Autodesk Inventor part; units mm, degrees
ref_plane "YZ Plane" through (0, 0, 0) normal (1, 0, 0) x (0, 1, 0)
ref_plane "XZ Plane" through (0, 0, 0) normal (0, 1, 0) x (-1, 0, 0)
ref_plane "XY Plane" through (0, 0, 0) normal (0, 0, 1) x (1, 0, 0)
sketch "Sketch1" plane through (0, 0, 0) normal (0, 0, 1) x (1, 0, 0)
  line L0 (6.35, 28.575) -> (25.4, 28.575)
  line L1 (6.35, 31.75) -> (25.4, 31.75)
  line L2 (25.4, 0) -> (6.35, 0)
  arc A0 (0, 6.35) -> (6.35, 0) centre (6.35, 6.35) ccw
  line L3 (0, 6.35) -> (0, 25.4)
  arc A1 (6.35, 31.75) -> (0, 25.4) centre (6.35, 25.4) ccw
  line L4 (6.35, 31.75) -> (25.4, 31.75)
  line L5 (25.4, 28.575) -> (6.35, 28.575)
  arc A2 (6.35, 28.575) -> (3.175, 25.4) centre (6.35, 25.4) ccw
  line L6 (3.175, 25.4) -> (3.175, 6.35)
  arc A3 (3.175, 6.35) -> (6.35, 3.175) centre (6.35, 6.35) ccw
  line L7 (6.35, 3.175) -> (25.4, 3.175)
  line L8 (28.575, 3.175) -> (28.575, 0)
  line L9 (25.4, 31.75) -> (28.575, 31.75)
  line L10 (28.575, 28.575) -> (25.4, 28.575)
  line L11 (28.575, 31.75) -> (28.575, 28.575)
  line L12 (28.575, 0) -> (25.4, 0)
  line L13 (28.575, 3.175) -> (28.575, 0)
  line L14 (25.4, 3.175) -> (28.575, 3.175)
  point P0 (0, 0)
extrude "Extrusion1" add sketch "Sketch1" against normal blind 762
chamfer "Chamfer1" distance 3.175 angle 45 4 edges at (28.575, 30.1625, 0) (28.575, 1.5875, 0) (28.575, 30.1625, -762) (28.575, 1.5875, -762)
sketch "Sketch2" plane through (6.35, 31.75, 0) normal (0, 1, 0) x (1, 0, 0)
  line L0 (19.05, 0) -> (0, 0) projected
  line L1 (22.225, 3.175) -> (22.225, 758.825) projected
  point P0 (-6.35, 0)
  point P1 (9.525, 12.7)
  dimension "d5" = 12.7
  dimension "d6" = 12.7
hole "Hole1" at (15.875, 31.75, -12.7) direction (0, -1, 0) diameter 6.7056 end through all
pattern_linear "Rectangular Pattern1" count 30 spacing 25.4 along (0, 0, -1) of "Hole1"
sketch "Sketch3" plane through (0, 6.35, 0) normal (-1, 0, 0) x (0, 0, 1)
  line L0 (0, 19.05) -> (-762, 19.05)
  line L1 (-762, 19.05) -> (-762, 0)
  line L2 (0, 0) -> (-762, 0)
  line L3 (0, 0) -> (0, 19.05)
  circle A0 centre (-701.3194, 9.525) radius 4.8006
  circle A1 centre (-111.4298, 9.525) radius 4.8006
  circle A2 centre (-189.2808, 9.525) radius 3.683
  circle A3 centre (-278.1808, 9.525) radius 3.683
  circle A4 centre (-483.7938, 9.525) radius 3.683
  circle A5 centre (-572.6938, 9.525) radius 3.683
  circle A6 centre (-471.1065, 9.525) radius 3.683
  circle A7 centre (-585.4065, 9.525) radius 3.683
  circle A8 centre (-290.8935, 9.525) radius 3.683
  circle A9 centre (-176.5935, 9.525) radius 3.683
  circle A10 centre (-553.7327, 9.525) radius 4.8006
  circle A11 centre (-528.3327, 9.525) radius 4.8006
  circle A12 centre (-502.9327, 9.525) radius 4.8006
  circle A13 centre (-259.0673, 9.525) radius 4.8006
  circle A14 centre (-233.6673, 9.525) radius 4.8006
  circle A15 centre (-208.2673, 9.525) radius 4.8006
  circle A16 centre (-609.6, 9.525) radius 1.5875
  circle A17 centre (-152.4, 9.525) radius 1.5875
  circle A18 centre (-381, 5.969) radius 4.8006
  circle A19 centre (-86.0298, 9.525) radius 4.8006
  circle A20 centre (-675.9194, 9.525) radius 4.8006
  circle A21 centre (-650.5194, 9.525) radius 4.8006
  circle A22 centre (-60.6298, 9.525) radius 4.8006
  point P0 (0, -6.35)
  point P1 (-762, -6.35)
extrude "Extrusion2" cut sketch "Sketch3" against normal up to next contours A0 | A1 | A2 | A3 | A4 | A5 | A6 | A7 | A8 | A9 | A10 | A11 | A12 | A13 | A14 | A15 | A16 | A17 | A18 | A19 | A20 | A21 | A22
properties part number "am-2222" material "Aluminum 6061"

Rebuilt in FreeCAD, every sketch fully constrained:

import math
import FreeCAD as App
import Part
import Sketcher

V = App.Vector
Q = App.Units.Quantity


def edges_at(feature, points):
    """Names of the edges that pass closest to the given points."""
    edges = feature.Shape.Edges
    near = lambda p: min(range(len(edges)), key=lambda i: edges[i].distToShape(Part.Vertex(*p))[0])
    return sorted({f"Edge{near(p) + 1}" for p in points})

doc = App.newDocument("Part")
body = doc.addObject("PartDesign::Body", "Body")

sketch1 = doc.addObject("Sketcher::SketchObject", "Sketch")
body.addObject(sketch1)
sketch1.AttachmentSupport = (doc.XY_Plane, [""])
sketch1.MapMode = "FlatFace"
sketch1.addGeometry(Part.ArcOfCircle(Part.Circle(V(6.3, 25.4, 0), V(0, 0, 1), 3.2), math.radians(90), math.radians(180)), False)
sketch1.addGeometry(Part.LineSegment(V(6.3, 28.6, 0), V(28.6, 28.6, 0)), False)
sketch1.addGeometry(Part.LineSegment(V(28.6, 28.6, 0), V(28.6, 31.8, 0)), False)
sketch1.addGeometry(Part.LineSegment(V(28.6, 31.8, 0), V(6.3, 31.8, 0)), False)
sketch1.addGeometry(Part.ArcOfCircle(Part.Circle(V(6.3, 25.4, 0), V(0, 0, 1), 6.4), math.radians(90), math.radians(180)), False)
sketch1.addGeometry(Part.LineSegment(V(0, 25.4, 0), V(0, 6.3, 0)), False)
sketch1.addGeometry(Part.ArcOfCircle(Part.Circle(V(6.3, 6.3, 0), V(0, 0, 1), 6.3), math.radians(180), math.radians(270)), False)
sketch1.addGeometry(Part.LineSegment(V(6.3, 0, 0), V(28.6, 0, 0)), False)
sketch1.addGeometry(Part.LineSegment(V(28.6, 0, 0), V(28.6, 3.2, 0)), False)
sketch1.addGeometry(Part.LineSegment(V(28.6, 3.2, 0), V(6.3, 3.2, 0)), False)
sketch1.addGeometry(Part.ArcOfCircle(Part.Circle(V(6.3, 6.3, 0), V(0, 0, 1), 3.2), math.radians(180), math.radians(270)), False)
sketch1.addGeometry(Part.LineSegment(V(3.2, 6.3, 0), V(3.2, 25.4, 0)), False)
sketch1.addConstraint(Sketcher.Constraint("Tangent", 0, 1, 1, 1))
sketch1.addConstraint(Sketcher.Constraint("Coincident", 1, 2, 2, 1))
sketch1.addConstraint(Sketcher.Constraint("Coincident", 2, 2, 3, 1))
sketch1.addConstraint(Sketcher.Constraint("Tangent", 3, 2, 4, 1))
sketch1.addConstraint(Sketcher.Constraint("Tangent", 4, 2, 5, 1))
sketch1.addConstraint(Sketcher.Constraint("Tangent", 5, 2, 6, 1))
sketch1.addConstraint(Sketcher.Constraint("Tangent", 6, 2, 7, 1))
sketch1.addConstraint(Sketcher.Constraint("Coincident", 7, 2, 8, 1))
sketch1.addConstraint(Sketcher.Constraint("Coincident", 8, 2, 9, 1))
sketch1.addConstraint(Sketcher.Constraint("Tangent", 9, 2, 10, 2))
sketch1.addConstraint(Sketcher.Constraint("Tangent", 10, 1, 11, 1))
sketch1.addConstraint(Sketcher.Constraint("Tangent", 11, 2, 0, 2))
sketch1.addConstraint(Sketcher.Constraint("Horizontal", 1))
sketch1.addConstraint(Sketcher.Constraint("Vertical", 2))
sketch1.addConstraint(Sketcher.Constraint("Horizontal", 3))
sketch1.addConstraint(Sketcher.Constraint("Vertical", 5))
sketch1.addConstraint(Sketcher.Constraint("Horizontal", 7))
sketch1.addConstraint(Sketcher.Constraint("Vertical", 8))
sketch1.addConstraint(Sketcher.Constraint("Horizontal", 9))
sketch1.addConstraint(Sketcher.Constraint("Vertical", 11))
sketch1.addConstraint(Sketcher.Constraint("Coincident", 4, 3, 0, 3))
sketch1.addConstraint(Sketcher.Constraint("Coincident", 10, 3, 6, 3))
sketch1.addConstraint(Sketcher.Constraint("Equal", 4, 6))
sketch1.addConstraint(Sketcher.Constraint("PointOnObject", 4, 2, -2))
sketch1.addConstraint(Sketcher.Constraint("PointOnObject", 6, 2, -1))
sketch1.addConstraint(Sketcher.Constraint("Vertical", 2, 2, 7, 2))
sketch1.addConstraint(Sketcher.Constraint("Radius", 4, Q("0.25 in")))
sketch1.addConstraint(Sketcher.Constraint("DistanceY", -1, 1, 0, 3, Q("1 in")))
sketch1.addConstraint(Sketcher.Constraint("Radius", 0, Q("0.125 in")))
sketch1.addConstraint(Sketcher.Constraint("DistanceX", 1, 1, 1, 2, Q("0.875 in")))
pad1 = doc.addObject("PartDesign::Pad", "Pad")
body.addObject(pad1)
pad1.Profile = sketch1
pad1.Length = Q("30 in")
pad1.Reversed = True
doc.recompute()

chamfer = doc.addObject("PartDesign::Chamfer", "Chamfer")
body.addObject(chamfer)
chamfer.Base = (pad1, edges_at(pad1, [
    (28.575, 30.163, 0),
    (28.575, 1.587, 0),
    (28.575, 30.163, -762),
    (28.575, 1.587, -762),
]))
chamfer.Size = Q("0.125 in")

sketch2 = doc.addObject("Sketcher::SketchObject", "Sketch001")
body.addObject(sketch2)
sketch2.AttachmentSupport = (doc.XZ_Plane, [""])
sketch2.MapMode = "FlatFace"
sketch2.AttachmentOffset = App.Placement(V(0, 0, -1.25 * 25.4), App.Rotation())
sketch2.addGeometry(Part.Circle(V(15.9, -12.7, 0), V(0, 0, 1), 3.4), False)
sketch2.addConstraint(Sketcher.Constraint("Diameter", 0, Q("0.264 in")))
sketch2.addConstraint(Sketcher.Constraint("DistanceY", 0, 3, -1, 1, Q("0.5 in")))
sketch2.addConstraint(Sketcher.Constraint("DistanceX", -1, 1, 0, 3, Q("0.625 in")))
doc.recompute()
hole = doc.addObject("PartDesign::Hole", "Hole")
body.addObject(hole)
hole.Profile = sketch2
hole.ThreadType = "None"
hole.Diameter = Q("0.264 in")
hole.DepthType = "ThroughAll"
hole.Reversed = True
doc.recompute()

linearpattern = doc.addObject("PartDesign::LinearPattern", "LinearPattern")
body.addObject(linearpattern)
linearpattern.Originals = [hole]
linearpattern.Direction = (doc.Z_Axis, [""])
linearpattern.Mode = "offset"
linearpattern.Offset = Q("1 in")
linearpattern.Occurrences = 30
linearpattern.Reversed = True
body.Tip = linearpattern

sketch3 = doc.addObject("Sketcher::SketchObject", "Sketch002")
body.addObject(sketch3)
sketch3.AttachmentSupport = (doc.YZ_Plane, [""])
sketch3.MapMode = "FlatFace"
sketch3.addGeometry(Part.Circle(V(15.9, -701.3, 0), V(0, 0, 1), 4.8), False)
sketch3.addGeometry(Part.Circle(V(15.9, -111.4, 0), V(0, 0, 1), 4.8), False)
sketch3.addGeometry(Part.Circle(V(15.9, -189.3, 0), V(0, 0, 1), 3.7), False)
sketch3.addGeometry(Part.Circle(V(15.9, -278.2, 0), V(0, 0, 1), 3.7), False)
sketch3.addGeometry(Part.Circle(V(15.9, -483.8, 0), V(0, 0, 1), 3.7), False)
sketch3.addGeometry(Part.Circle(V(15.9, -572.7, 0), V(0, 0, 1), 3.7), False)
sketch3.addGeometry(Part.Circle(V(15.9, -471.1, 0), V(0, 0, 1), 3.7), False)
sketch3.addGeometry(Part.Circle(V(15.9, -585.4, 0), V(0, 0, 1), 3.7), False)
sketch3.addGeometry(Part.Circle(V(15.9, -290.9, 0), V(0, 0, 1), 3.7), False)
sketch3.addGeometry(Part.Circle(V(15.9, -176.6, 0), V(0, 0, 1), 3.7), False)
sketch3.addGeometry(Part.Circle(V(15.9, -553.7, 0), V(0, 0, 1), 4.8), False)
sketch3.addGeometry(Part.Circle(V(15.9, -528.3, 0), V(0, 0, 1), 4.8), False)
sketch3.addGeometry(Part.Circle(V(15.9, -502.9, 0), V(0, 0, 1), 4.8), False)
sketch3.addGeometry(Part.Circle(V(15.9, -259.1, 0), V(0, 0, 1), 4.8), False)
sketch3.addGeometry(Part.Circle(V(15.9, -233.7, 0), V(0, 0, 1), 4.8), False)
sketch3.addGeometry(Part.Circle(V(15.9, -208.3, 0), V(0, 0, 1), 4.8), False)
sketch3.addGeometry(Part.Circle(V(15.9, -609.6, 0), V(0, 0, 1), 1.6), False)
sketch3.addGeometry(Part.Circle(V(15.9, -152.4, 0), V(0, 0, 1), 1.6), False)
sketch3.addGeometry(Part.Circle(V(12.3, -381, 0), V(0, 0, 1), 4.8), False)
sketch3.addGeometry(Part.Circle(V(15.9, -86, 0), V(0, 0, 1), 4.8), False)
sketch3.addGeometry(Part.Circle(V(15.9, -675.9, 0), V(0, 0, 1), 4.8), False)
sketch3.addGeometry(Part.Circle(V(15.9, -650.5, 0), V(0, 0, 1), 4.8), False)
sketch3.addGeometry(Part.Circle(V(15.9, -60.6, 0), V(0, 0, 1), 4.8), False)
sketch3.addConstraint(Sketcher.Constraint("Equal", 0, 1))
sketch3.addConstraint(Sketcher.Constraint("Equal", 2, 3))
sketch3.addConstraint(Sketcher.Constraint("Equal", 3, 4))
sketch3.addConstraint(Sketcher.Constraint("Equal", 4, 5))
sketch3.addConstraint(Sketcher.Constraint("Equal", 5, 6))
sketch3.addConstraint(Sketcher.Constraint("Equal", 6, 7))
sketch3.addConstraint(Sketcher.Constraint("Equal", 7, 8))
sketch3.addConstraint(Sketcher.Constraint("Equal", 8, 9))
sketch3.addConstraint(Sketcher.Constraint("Equal", 1, 10))
sketch3.addConstraint(Sketcher.Constraint("Equal", 10, 11))
sketch3.addConstraint(Sketcher.Constraint("Equal", 11, 12))
sketch3.addConstraint(Sketcher.Constraint("Equal", 12, 13))
sketch3.addConstraint(Sketcher.Constraint("Equal", 13, 14))
sketch3.addConstraint(Sketcher.Constraint("Equal", 14, 15))
sketch3.addConstraint(Sketcher.Constraint("Equal", 16, 17))
sketch3.addConstraint(Sketcher.Constraint("Equal", 15, 18))
sketch3.addConstraint(Sketcher.Constraint("Equal", 18, 19))
sketch3.addConstraint(Sketcher.Constraint("Equal", 19, 20))
sketch3.addConstraint(Sketcher.Constraint("Equal", 20, 21))
sketch3.addConstraint(Sketcher.Constraint("Equal", 21, 22))
sketch3.addConstraint(Sketcher.Constraint("Vertical", 0, 3, 1, 3))
sketch3.addConstraint(Sketcher.Constraint("Vertical", 1, 3, 2, 3))
sketch3.addConstraint(Sketcher.Constraint("Vertical", 2, 3, 3, 3))
sketch3.addConstraint(Sketcher.Constraint("Vertical", 3, 3, 4, 3))
sketch3.addConstraint(Sketcher.Constraint("Vertical", 4, 3, 5, 3))
sketch3.addConstraint(Sketcher.Constraint("Vertical", 5, 3, 6, 3))
sketch3.addConstraint(Sketcher.Constraint("Vertical", 6, 3, 7, 3))
sketch3.addConstraint(Sketcher.Constraint("Vertical", 7, 3, 8, 3))
sketch3.addConstraint(Sketcher.Constraint("Vertical", 8, 3, 9, 3))
sketch3.addConstraint(Sketcher.Constraint("Vertical", 9, 3, 10, 3))
sketch3.addConstraint(Sketcher.Constraint("Vertical", 10, 3, 11, 3))
sketch3.addConstraint(Sketcher.Constraint("Vertical", 11, 3, 12, 3))
sketch3.addConstraint(Sketcher.Constraint("Vertical", 12, 3, 13, 3))
sketch3.addConstraint(Sketcher.Constraint("Vertical", 13, 3, 14, 3))
sketch3.addConstraint(Sketcher.Constraint("Vertical", 14, 3, 15, 3))
sketch3.addConstraint(Sketcher.Constraint("Vertical", 15, 3, 16, 3))
sketch3.addConstraint(Sketcher.Constraint("Vertical", 16, 3, 17, 3))
sketch3.addConstraint(Sketcher.Constraint("Vertical", 17, 3, 19, 3))
sketch3.addConstraint(Sketcher.Constraint("Vertical", 19, 3, 20, 3))
sketch3.addConstraint(Sketcher.Constraint("Vertical", 20, 3, 21, 3))
sketch3.addConstraint(Sketcher.Constraint("Vertical", 21, 3, 22, 3))
sketch3.addConstraint(Sketcher.Constraint("Diameter", 2, Q("0.29 in")))
sketch3.addConstraint(Sketcher.Constraint("Diameter", 0, Q("0.378 in")))
sketch3.addConstraint(Sketcher.Constraint("Diameter", 16, Q("0.125 in")))
sketch3.addConstraint(Sketcher.Constraint("DistanceY", 16, 3, -1, 1, Q("24 in")))
sketch3.addConstraint(Sketcher.Constraint("DistanceY", 17, 3, -1, 1, Q("6 in")))
sketch3.addConstraint(Sketcher.Constraint("DistanceY", 18, 3, -1, 1, Q("15 in")))
sketch3.addConstraint(Sketcher.Constraint("DistanceY", 10, 3, 11, 3, Q("1 in")))
sketch3.addConstraint(Sketcher.Constraint("DistanceY", 11, 3, 12, 3, Q("1 in")))
sketch3.addConstraint(Sketcher.Constraint("DistanceY", 13, 3, 14, 3, Q("1 in")))
sketch3.addConstraint(Sketcher.Constraint("DistanceY", 14, 3, 15, 3, Q("1 in")))
sketch3.addConstraint(Sketcher.Constraint("DistanceY", 1, 3, 19, 3, Q("1 in")))
sketch3.addConstraint(Sketcher.Constraint("DistanceY", 0, 3, 20, 3, Q("1 in")))
sketch3.addConstraint(Sketcher.Constraint("DistanceY", 20, 3, 21, 3, Q("1 in")))
sketch3.addConstraint(Sketcher.Constraint("DistanceY", 19, 3, 22, 3, Q("1 in")))
sketch3.addConstraint(Sketcher.Constraint("DistanceY", 3, 3, 2, 3, Q("3.5 in")))
sketch3.addConstraint(Sketcher.Constraint("DistanceY", 5, 3, 4, 3, Q("3.5 in")))
sketch3.addConstraint(Sketcher.Constraint("DistanceY", 7, 3, 6, 3, Q("4.5 in")))
sketch3.addConstraint(Sketcher.Constraint("DistanceY", 8, 3, 9, 3, Q("4.5 in")))
sketch3.addConstraint(Sketcher.Constraint("DistanceY", 4, 3, 1, 3, Q("14.66 in")))
sketch3.addConstraint(Sketcher.Constraint("DistanceX", 18, 3, 6, 3, Q("0.14 in")))
sketch3.addConstraint(Sketcher.Constraint("DistanceX", -1, 1, 0, 3, Q("0.625 in")))
sketch3.addConstraint(Sketcher.Constraint("DistanceY", 0, 3, -1, 1, Q("27.611 in")))
sketch3.addConstraint(Sketcher.Constraint("DistanceY", 1, 3, -1, 1, Q("4.387 in")))
sketch3.addConstraint(Sketcher.Constraint("DistanceY", 2, 3, -1, 1, Q("7.452 in")))
sketch3.addConstraint(Sketcher.Constraint("DistanceY", 6, 3, 8, 3, Q("7.095 in")))
sketch3.addConstraint(Sketcher.Constraint("DistanceY", 7, 3, 10, 3, Q("1.247 in")))
sketch3.addConstraint(Sketcher.Constraint("DistanceY", 8, 3, 13, 3, Q("1.253 in")))
sketch3.addConstraint(Sketcher.Constraint("DistanceY", 13, 3, 1, 3, Q("5.8125 in")))
pocket1 = doc.addObject("PartDesign::Pocket", "Pocket")
body.addObject(pocket1)
pocket1.Profile = sketch3
pocket1.Type = "UpToFirst"
pocket1.Reversed = True

doc.recompute()
